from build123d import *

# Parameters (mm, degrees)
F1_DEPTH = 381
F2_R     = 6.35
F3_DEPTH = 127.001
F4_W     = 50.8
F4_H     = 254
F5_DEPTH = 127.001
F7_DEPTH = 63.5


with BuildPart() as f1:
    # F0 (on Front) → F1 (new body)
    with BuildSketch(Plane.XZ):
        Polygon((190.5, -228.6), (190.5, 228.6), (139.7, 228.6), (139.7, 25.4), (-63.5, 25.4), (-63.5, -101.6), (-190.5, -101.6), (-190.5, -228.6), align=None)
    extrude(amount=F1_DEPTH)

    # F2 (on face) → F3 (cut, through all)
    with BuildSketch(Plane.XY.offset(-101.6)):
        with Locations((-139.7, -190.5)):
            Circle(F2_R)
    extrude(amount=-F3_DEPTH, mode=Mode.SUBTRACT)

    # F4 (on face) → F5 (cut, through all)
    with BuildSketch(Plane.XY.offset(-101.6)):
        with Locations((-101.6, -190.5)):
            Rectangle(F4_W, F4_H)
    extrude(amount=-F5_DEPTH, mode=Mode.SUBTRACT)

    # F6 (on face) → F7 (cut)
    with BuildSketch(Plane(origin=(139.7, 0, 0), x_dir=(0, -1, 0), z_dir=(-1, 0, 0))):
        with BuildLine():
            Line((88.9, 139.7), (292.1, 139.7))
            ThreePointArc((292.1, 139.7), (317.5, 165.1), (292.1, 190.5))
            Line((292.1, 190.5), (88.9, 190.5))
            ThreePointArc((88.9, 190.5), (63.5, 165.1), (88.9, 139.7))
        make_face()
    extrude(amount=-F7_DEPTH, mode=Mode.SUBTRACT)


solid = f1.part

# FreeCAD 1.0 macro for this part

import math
import FreeCAD as App
import Part
import Sketcher
Q = App.Units.Quantity


def add_polygon(sketch, points):
    """Adds a closed chain of lines whose ends are joined by coincident constraints."""
    first, n = sketch.GeometryCount, len(points)
    for a, b in zip(points, points[1:] + points[:1]):
        sketch.addGeometry(Part.LineSegment(App.Vector(*a, 0), App.Vector(*b, 0)), False)
    for i in range(n):
        sketch.addConstraint(Sketcher.Constraint("Coincident", first + i, 2, first + (i + 1) % n, 1))

doc = App.newDocument("Part")
body = doc.addObject("PartDesign::Body", "Body")

sketch1 = body.newObject("Sketcher::SketchObject", "Sketch")
sketch1.AttachmentSupport = (doc.getObject("XZ_Plane"), [""])
sketch1.MapMode = "FlatFace"
add_polygon(sketch1, [(190, -229), (190, 229), (140, 229), (140, 25), (-64, 25), (-64, -102), (-190, -102), (-190, -229)])
sketch1.addConstraint([
    Sketcher.Constraint("Vertical", 0),
    Sketcher.Constraint("Horizontal", 1),
    Sketcher.Constraint("Vertical", 2),
    Sketcher.Constraint("Horizontal", 3),
    Sketcher.Constraint("Vertical", 4),
    Sketcher.Constraint("Horizontal", 5),
    Sketcher.Constraint("Vertical", 6),
    Sketcher.Constraint("Horizontal", 7),
    Sketcher.Constraint("Symmetric", 0, 2, 6, 2, -1, 1),
    Sketcher.Constraint("Equal", 3, 2),
    Sketcher.Constraint("Equal", 5, 4),
    Sketcher.Constraint("Equal", 4, 6),
    Sketcher.Constraint("DistanceX", 1, 2, 1, 1, Q("2 in")),
    Sketcher.Constraint("DistanceX", 3, 2, 3, 1, Q("8 in")),
    Sketcher.Constraint("DistanceX", 5, 2, 5, 1, Q("5 in")),
])
pad1 = body.newObject("PartDesign::Pad", "Pad")
pad1.Profile = sketch1
pad1.Length = Q("15 in")

sketch2 = body.newObject("Sketcher::SketchObject", "Sketch001")
sketch2.AttachmentSupport = (doc.getObject("XY_Plane"), [""])
sketch2.MapMode = "FlatFace"
sketch2.AttachmentOffset = App.Placement(App.Vector(0, 0, -4 * 25.4), App.Rotation())
sketch2.addGeometry(Part.Circle(App.Vector(-140, -190, 0), App.Vector(0, 0, 1), 6), False)
sketch2.addConstraint([
    Sketcher.Constraint("Diameter", 0, Q("0.5 in")),
    Sketcher.Constraint("DistanceX", 0, 3, -1, 1, Q("5.5 in")),
    Sketcher.Constraint("DistanceY", 0, 3, -1, 1, Q("7.5 in")),
])
pocket1 = body.newObject("PartDesign::Pocket", "Pocket")
pocket1.Profile = sketch2
pocket1.Type = "ThroughAll"

sketch3 = body.newObject("Sketcher::SketchObject", "Sketch002")
sketch3.AttachmentSupport = (doc.getObject("XY_Plane"), [""])
sketch3.MapMode = "FlatFace"
sketch3.AttachmentOffset = App.Placement(App.Vector(0, 0, -4 * 25.4), App.Rotation())
add_polygon(sketch3, [(-127, -64), (-127, -318), (-76, -318), (-76, -64)])
sketch3.addConstraint([
    Sketcher.Constraint("Vertical", 0),
    Sketcher.Constraint("Horizontal", 1),
    Sketcher.Constraint("Vertical", 2),
    Sketcher.Constraint("Horizontal", 3),
    Sketcher.Constraint("DistanceX", 1, 1, 1, 2, Q("2 in")),
    Sketcher.Constraint("DistanceY", 0, 2, 0, 1, Q("10 in")),
    Sketcher.Constraint("DistanceX", 0, 2, -1, 1, Q("5 in")),
    Sketcher.Constraint("DistanceY", 0, 2, -1, 1, Q("12.5 in")),
])
pocket2 = body.newObject("PartDesign::Pocket", "Pocket001")
pocket2.Profile = sketch3
pocket2.Type = "ThroughAll"

sketch4 = body.newObject("Sketcher::SketchObject", "Sketch003")
sketch4.AttachmentSupport = (doc.getObject("YZ_Plane"), [""])
sketch4.MapMode = "FlatFace"
sketch4.AttachmentOffset = App.Placement(App.Vector(0, 0, 5.5 * 25.4), App.Rotation())
sketch4.addGeometry([
    Part.LineSegment(App.Vector(-89, 140, 0), App.Vector(-292, 140, 0)),
    Part.ArcOfCircle(Part.Circle(App.Vector(-292, 165, 0), App.Vector(0, 0, 1), 25), math.radians(90), math.radians(270)),
    Part.LineSegment(App.Vector(-292, 190, 0), App.Vector(-89, 190, 0)),
    Part.ArcOfCircle(Part.Circle(App.Vector(-89, 165, 0), App.Vector(0, 0, 1), 25), math.radians(-90), math.radians(90)),
], False)
sketch4.addConstraint([
    Sketcher.Constraint("Tangent", 0, 2, 1, 2),
    Sketcher.Constraint("Tangent", 1, 1, 2, 1),
    Sketcher.Constraint("Tangent", 2, 2, 3, 2),
    Sketcher.Constraint("Tangent", 3, 1, 0, 1),
    Sketcher.Constraint("Horizontal", 0),
    Sketcher.Constraint("Horizontal", 2),
    Sketcher.Constraint("Radius", 1, Q("1 in")),
    Sketcher.Constraint("DistanceX", 0, 2, 0, 1, Q("8 in")),
    Sketcher.Constraint("DistanceX", 1, 3, -1, 1, Q("11.5 in")),
    Sketcher.Constraint("DistanceY", -1, 1, 1, 3, Q("6.5 in")),
])
pocket3 = body.newObject("PartDesign::Pocket", "Pocket002")
pocket3.Profile = sketch4
pocket3.Length = Q("2.5 in")
pocket3.Reversed = True

doc.recompute()
